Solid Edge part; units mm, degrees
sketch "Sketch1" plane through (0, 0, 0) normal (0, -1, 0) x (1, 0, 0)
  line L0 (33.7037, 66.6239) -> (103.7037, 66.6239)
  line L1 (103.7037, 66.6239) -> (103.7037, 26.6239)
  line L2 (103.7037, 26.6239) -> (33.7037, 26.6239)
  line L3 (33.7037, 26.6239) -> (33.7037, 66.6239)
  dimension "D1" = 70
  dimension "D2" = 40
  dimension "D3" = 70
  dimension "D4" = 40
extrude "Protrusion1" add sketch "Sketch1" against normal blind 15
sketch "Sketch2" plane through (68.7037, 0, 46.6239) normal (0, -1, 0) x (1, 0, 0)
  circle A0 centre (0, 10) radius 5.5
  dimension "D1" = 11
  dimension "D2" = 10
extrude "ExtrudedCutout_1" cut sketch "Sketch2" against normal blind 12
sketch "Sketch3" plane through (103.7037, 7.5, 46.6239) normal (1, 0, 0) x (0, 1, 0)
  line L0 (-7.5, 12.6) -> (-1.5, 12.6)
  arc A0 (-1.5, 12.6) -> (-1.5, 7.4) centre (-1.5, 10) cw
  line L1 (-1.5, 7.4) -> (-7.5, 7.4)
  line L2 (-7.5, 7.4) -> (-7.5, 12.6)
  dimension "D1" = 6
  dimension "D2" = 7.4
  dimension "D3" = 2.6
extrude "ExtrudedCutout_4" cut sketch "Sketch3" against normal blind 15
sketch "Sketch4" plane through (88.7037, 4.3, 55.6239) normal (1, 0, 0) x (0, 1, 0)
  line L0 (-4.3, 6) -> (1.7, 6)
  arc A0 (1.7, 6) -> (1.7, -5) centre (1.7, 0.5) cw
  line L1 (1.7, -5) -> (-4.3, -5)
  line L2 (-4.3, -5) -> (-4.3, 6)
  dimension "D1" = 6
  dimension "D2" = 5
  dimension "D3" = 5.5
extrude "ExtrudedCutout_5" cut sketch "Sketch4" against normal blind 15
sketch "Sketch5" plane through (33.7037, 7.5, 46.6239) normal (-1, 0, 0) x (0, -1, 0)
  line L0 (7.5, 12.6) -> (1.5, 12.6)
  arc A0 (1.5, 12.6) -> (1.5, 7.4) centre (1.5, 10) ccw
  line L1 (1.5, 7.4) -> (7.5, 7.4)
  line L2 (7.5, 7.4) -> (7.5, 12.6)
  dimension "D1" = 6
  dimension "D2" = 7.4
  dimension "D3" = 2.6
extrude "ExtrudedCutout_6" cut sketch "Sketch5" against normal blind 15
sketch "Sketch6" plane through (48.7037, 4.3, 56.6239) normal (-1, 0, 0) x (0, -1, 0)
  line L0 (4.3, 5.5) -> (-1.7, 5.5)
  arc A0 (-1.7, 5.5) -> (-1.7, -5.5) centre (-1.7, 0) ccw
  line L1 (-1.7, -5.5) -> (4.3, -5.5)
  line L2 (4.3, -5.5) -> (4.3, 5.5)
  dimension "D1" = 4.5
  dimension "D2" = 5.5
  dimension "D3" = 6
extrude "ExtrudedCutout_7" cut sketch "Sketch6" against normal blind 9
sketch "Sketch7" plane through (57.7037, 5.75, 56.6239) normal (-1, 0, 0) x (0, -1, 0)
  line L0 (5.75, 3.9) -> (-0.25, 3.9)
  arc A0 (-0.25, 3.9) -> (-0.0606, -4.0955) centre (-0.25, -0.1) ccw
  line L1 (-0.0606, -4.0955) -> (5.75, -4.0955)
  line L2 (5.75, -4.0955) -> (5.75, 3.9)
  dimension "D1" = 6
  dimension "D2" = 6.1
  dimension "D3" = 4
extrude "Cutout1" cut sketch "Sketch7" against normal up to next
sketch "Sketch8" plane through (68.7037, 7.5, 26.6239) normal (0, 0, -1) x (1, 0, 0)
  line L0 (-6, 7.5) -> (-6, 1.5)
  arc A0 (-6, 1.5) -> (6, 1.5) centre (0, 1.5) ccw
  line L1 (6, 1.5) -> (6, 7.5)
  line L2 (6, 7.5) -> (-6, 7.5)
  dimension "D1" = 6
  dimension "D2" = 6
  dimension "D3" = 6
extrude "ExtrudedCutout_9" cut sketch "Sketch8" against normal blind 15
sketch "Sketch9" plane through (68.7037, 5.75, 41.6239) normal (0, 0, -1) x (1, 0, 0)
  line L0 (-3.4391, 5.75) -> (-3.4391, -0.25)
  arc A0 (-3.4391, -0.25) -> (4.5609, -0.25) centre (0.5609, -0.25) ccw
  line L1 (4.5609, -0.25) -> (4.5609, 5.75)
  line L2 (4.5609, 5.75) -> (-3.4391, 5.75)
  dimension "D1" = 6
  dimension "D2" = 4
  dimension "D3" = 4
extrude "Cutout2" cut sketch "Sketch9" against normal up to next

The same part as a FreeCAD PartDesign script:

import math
import FreeCAD as App
import Part
import Sketcher

V = App.Vector


def add_polygon(sketch, points):
    """Adds a closed chain of lines whose ends are joined by coincident constraints."""
    first, n = sketch.GeometryCount, len(points)
    for a, b in zip(points, points[1:] + points[:1]):
        sketch.addGeometry(Part.LineSegment(App.Vector(*a, 0), App.Vector(*b, 0)), False)
    for i in range(n):
        sketch.addConstraint(Sketcher.Constraint("Coincident", first + i, 2, first + (i + 1) % n, 1))

doc = App.newDocument("Part")
body = doc.addObject("PartDesign::Body", "Body")

sketch1 = body.newObject("Sketcher::SketchObject", "Sketch")
sketch1.AttachmentSupport = (doc.getObject("XZ_Plane"), [""])
sketch1.MapMode = "FlatFace"
add_polygon(sketch1, [(104, 67), (34, 67), (34, 27), (104, 27)])
sketch1.addConstraint([
    Sketcher.Constraint("Horizontal", 0),
    Sketcher.Constraint("Vertical", 1),
    Sketcher.Constraint("Horizontal", 2),
    Sketcher.Constraint("Vertical", 3),
    Sketcher.Constraint("DistanceX", 0, 2, 0, 1, 70.0),
    Sketcher.Constraint("DistanceY", 1, 2, 1, 1, 40.0),
    Sketcher.Constraint("DistanceX", -1, 1, 0, 2, 33.7037),
    Sketcher.Constraint("DistanceY", -1, 1, 0, 2, 66.624),
])
pad1 = body.newObject("PartDesign::Pad", "Pad")
pad1.Profile = sketch1
pad1.Length = 15
pad1.Reversed = True

sketch2 = body.newObject("Sketcher::SketchObject", "Sketch001")
sketch2.AttachmentSupport = (doc.getObject("XZ_Plane"), [""])
sketch2.MapMode = "FlatFace"
sketch2.addGeometry(Part.Circle(V(69, 57, 0), V(0, 0, 1), 6), False)
sketch2.addConstraint([
    Sketcher.Constraint("Diameter", 0, 11.0),
    Sketcher.Constraint("DistanceY", -1, 1, 0, 3, 56.624),
    Sketcher.Constraint("DistanceX", -1, 1, 0, 3, 68.7037),
])
pocket1 = body.newObject("PartDesign::Pocket", "Pocket")
pocket1.Profile = sketch2
pocket1.Length = 12

sketch3 = body.newObject("Sketcher::SketchObject", "Sketch002")
sketch3.AttachmentSupport = (doc.getObject("YZ_Plane"), [""])
sketch3.MapMode = "FlatFace"
sketch3.AttachmentOffset = App.Placement(V(0, 0, 103.7037), App.Rotation())
sketch3.addGeometry([
    Part.LineSegment(V(6, 59.2, 0), V(0, 59.2, 0)),
    Part.LineSegment(V(0, 59.2, 0), V(0, 54, 0)),
    Part.LineSegment(V(0, 54, 0), V(6, 54, 0)),
    Part.ArcOfCircle(Part.Circle(V(6, 56.6, 0), V(0, 0, 1), 2.6), math.radians(-90), math.radians(90)),
], False)
sketch3.addConstraint([
    Sketcher.Constraint("Coincident", 0, 2, 1, 1),
    Sketcher.Constraint("Coincident", 1, 2, 2, 1),
    Sketcher.Constraint("Tangent", 2, 2, 3, 1),
    Sketcher.Constraint("Tangent", 3, 2, 0, 1),
    Sketcher.Constraint("Horizontal", 0),
    Sketcher.Constraint("Vertical", 1),
    Sketcher.Constraint("Horizontal", 2),
    Sketcher.Constraint("PointOnObject", 0, 2, -2),
    Sketcher.Constraint("Radius", 3, 2.6),
    Sketcher.Constraint("DistanceX", 0, 2, 0, 1, 6.0),
    Sketcher.Constraint("DistanceY", -1, 1, 3, 3, 56.624),
])
pocket2 = body.newObject("PartDesign::Pocket", "Pocket001")
pocket2.Profile = sketch3
pocket2.Length = 15

sketch4 = body.newObject("Sketcher::SketchObject", "Sketch003")
sketch4.AttachmentSupport = (doc.getObject("YZ_Plane"), [""])
sketch4.MapMode = "FlatFace"
sketch4.AttachmentOffset = App.Placement(V(0, 0, 88.7037), App.Rotation())
sketch4.addGeometry([
    Part.LineSegment(V(6, 62, 0), V(0, 62, 0)),
    Part.LineSegment(V(0, 62, 0), V(0, 51, 0)),
    Part.LineSegment(V(0, 51, 0), V(6, 51, 0)),
    Part.ArcOfCircle(Part.Circle(V(6, 56, 0), V(0, 0, 1), 6), math.radians(-90), math.radians(90)),
], False)
sketch4.addConstraint([
    Sketcher.Constraint("Coincident", 0, 2, 1, 1),
    Sketcher.Constraint("Coincident", 1, 2, 2, 1),
    Sketcher.Constraint("Tangent", 2, 2, 3, 1),
    Sketcher.Constraint("Tangent", 3, 2, 0, 1),
    Sketcher.Constraint("Horizontal", 0),
    Sketcher.Constraint("Vertical", 1),
    Sketcher.Constraint("Horizontal", 2),
    Sketcher.Constraint("PointOnObject", 0, 2, -2),
    Sketcher.Constraint("Radius", 3, 5.5),
    Sketcher.Constraint("DistanceX", 0, 2, 0, 1, 6.0),
    Sketcher.Constraint("DistanceY", -1, 1, 3, 3, 56.124),
])
pocket3 = body.newObject("PartDesign::Pocket", "Pocket002")
pocket3.Profile = sketch4
pocket3.Length = 15

sketch5 = body.newObject("Sketcher::SketchObject", "Sketch004")
sketch5.AttachmentSupport = (doc.getObject("YZ_Plane"), [""])
sketch5.MapMode = "FlatFace"
sketch5.AttachmentOffset = App.Placement(V(0, 0, 33.7037), App.Rotation())
sketch5.addGeometry([
    Part.LineSegment(V(0, 54, 0), V(0, 59.2, 0)),
    Part.LineSegment(V(0, 59.2, 0), V(6, 59.2, 0)),
    Part.ArcOfCircle(Part.Circle(V(6, 56.6, 0), V(0, 0, 1), 2.6), math.radians(-90), math.radians(90)),
    Part.LineSegment(V(6, 54, 0), V(0, 54, 0)),
], False)
sketch5.addConstraint([
    Sketcher.Constraint("Coincident", 0, 2, 1, 1),
    Sketcher.Constraint("Tangent", 1, 2, 2, 2),
    Sketcher.Constraint("Tangent", 2, 1, 3, 1),
    Sketcher.Constraint("Coincident", 3, 2, 0, 1),
    Sketcher.Constraint("Vertical", 0),
    Sketcher.Constraint("Horizontal", 1),
    Sketcher.Constraint("Horizontal", 3),
    Sketcher.Constraint("PointOnObject", 0, 2, -2),
    Sketcher.Constraint("Radius", 2, 2.6),
    Sketcher.Constraint("DistanceX", 1, 1, 1, 2, 6.0),
    Sketcher.Constraint("DistanceY", -1, 1, 2, 3, 56.624),
])
pocket4 = body.newObject("PartDesign::Pocket", "Pocket003")
pocket4.Profile = sketch5
pocket4.Length = 15
pocket4.Reversed = True

sketch6 = body.newObject("Sketcher::SketchObject", "Sketch005")
sketch6.AttachmentSupport = (doc.getObject("YZ_Plane"), [""])
sketch6.MapMode = "FlatFace"
sketch6.AttachmentOffset = App.Placement(V(0, 0, 48.7037), App.Rotation())
sketch6.addGeometry([
    Part.LineSegment(V(0, 51, 0), V(0, 62, 0)),
    Part.LineSegment(V(0, 62, 0), V(6, 62, 0)),
    Part.ArcOfCircle(Part.Circle(V(6, 57, 0), V(0, 0, 1), 6), math.radians(-90), math.radians(90)),
    Part.LineSegment(V(6, 51, 0), V(0, 51, 0)),
], False)
sketch6.addConstraint([
    Sketcher.Constraint("Coincident", 0, 2, 1, 1),
    Sketcher.Constraint("Tangent", 1, 2, 2, 2),
    Sketcher.Constraint("Tangent", 2, 1, 3, 1),
    Sketcher.Constraint("Coincident", 3, 2, 0, 1),
    Sketcher.Constraint("Vertical", 0),
    Sketcher.Constraint("Horizontal", 1),
    Sketcher.Constraint("Horizontal", 3),
    Sketcher.Constraint("PointOnObject", 0, 2, -2),
    Sketcher.Constraint("Radius", 2, 5.5),
    Sketcher.Constraint("DistanceX", 1, 1, 1, 2, 6.0),
    Sketcher.Constraint("DistanceY", -1, 1, 2, 3, 56.624),
])
pocket5 = body.newObject("PartDesign::Pocket", "Pocket004")
pocket5.Profile = sketch6
pocket5.Length = 9
pocket5.Reversed = True

sketch7 = body.newObject("Sketcher::SketchObject", "Sketch006")
sketch7.AttachmentSupport = (doc.getObject("YZ_Plane"), [""])
sketch7.MapMode = "FlatFace"
sketch7.AttachmentOffset = App.Placement(V(0, 0, 57.7037), App.Rotation())
sketch7.addGeometry([
    Part.LineSegment(V(0, 52.5, 0), V(0, 60.5, 0)),
    Part.LineSegment(V(0, 60.5, 0), V(6, 60.5, 0)),
    Part.ArcOfCircle(Part.Circle(V(6, 56.5, 0), V(0, 0, 1), 4), math.radians(-93), math.radians(90)),
    Part.LineSegment(V(5.8, 52.5, 0), V(0, 52.5, 0)),
], False)
sketch7.addConstraint([
    Sketcher.Constraint("Coincident", 0, 2, 1, 1),
    Sketcher.Constraint("Tangent", 1, 2, 2, 2),
    Sketcher.Constraint("Coincident", 2, 1, 3, 1),
    Sketcher.Constraint("Coincident", 3, 2, 0, 1),
    Sketcher.Constraint("Vertical", 0),
    Sketcher.Constraint("Horizontal", 1),
    Sketcher.Constraint("Horizontal", 3),
    Sketcher.Constraint("PointOnObject", 0, 2, -2),
    Sketcher.Constraint("Radius", 2, 4.0),
    Sketcher.Constraint("DistanceX", 1, 1, 1, 2, 6.0),
    Sketcher.Constraint("DistanceX", 3, 2, 3, 1, 5.8106),
    Sketcher.Constraint("DistanceY", -1, 1, 2, 3, 56.524),
])
pocket6 = body.newObject("PartDesign::Pocket", "Pocket005")
pocket6.Profile = sketch7
pocket6.Type = "UpToFirst"
pocket6.Reversed = True

sketch8 = body.newObject("Sketcher::SketchObject", "Sketch007")
sketch8.AttachmentSupport = (doc.getObject("XY_Plane"), [""])
sketch8.MapMode = "FlatFace"
sketch8.AttachmentOffset = App.Placement(V(0, 0, 26.6239), App.Rotation())
sketch8.addGeometry([
    Part.LineSegment(V(75, 0, 0), V(63, 0, 0)),
    Part.LineSegment(V(63, 0, 0), V(63, 6, 0)),
    Part.ArcOfCircle(Part.Circle(V(69, 6, 0), V(0, 0, 1), 6), math.radians(0), math.radians(180)),
    Part.LineSegment(V(75, 6, 0), V(75, 0, 0)),
], False)
sketch8.addConstraint([
    Sketcher.Constraint("Coincident", 0, 2, 1, 1),
    Sketcher.Constraint("Tangent", 1, 2, 2, 2),
    Sketcher.Constraint("Tangent", 2, 1, 3, 1),
    Sketcher.Constraint("Coincident", 3, 2, 0, 1),
    Sketcher.Constraint("Horizontal", 0),
    Sketcher.Constraint("Vertical", 1),
    Sketcher.Constraint("Vertical", 3),
    Sketcher.Constraint("PointOnObject", 0, 2, -1),
    Sketcher.Constraint("Radius", 2, 6.0),
    Sketcher.Constraint("DistanceY", 1, 1, 1, 2, 6.0),
    Sketcher.Constraint("DistanceX", -1, 1, 2, 3, 68.7037),
])
pocket7 = body.newObject("PartDesign::Pocket", "Pocket006")
pocket7.Profile = sketch8
pocket7.Length = 15
pocket7.Reversed = True

sketch9 = body.newObject("Sketcher::SketchObject", "Sketch008")
sketch9.AttachmentSupport = (doc.getObject("XY_Plane"), [""])
sketch9.MapMode = "FlatFace"
sketch9.AttachmentOffset = App.Placement(V(0, 0, 41.6239), App.Rotation())
sketch9.addGeometry([
    Part.LineSegment(V(73.3, 0, 0), V(65.3, 0, 0)),
    Part.LineSegment(V(65.3, 0, 0), V(65.3, 6, 0)),
    Part.ArcOfCircle(Part.Circle(V(69.3, 6, 0), V(0, 0, 1), 4), math.radians(0), math.radians(180)),
    Part.LineSegment(V(73.3, 6, 0), V(73.3, 0, 0)),
], False)
sketch9.addConstraint([
    Sketcher.Constraint("Coincident", 0, 2, 1, 1),
    Sketcher.Constraint("Tangent", 1, 2, 2, 2),
    Sketcher.Constraint("Tangent", 2, 1, 3, 1),
    Sketcher.Constraint("Coincident", 3, 2, 0, 1),
    Sketcher.Constraint("Horizontal", 0),
    Sketcher.Constraint("Vertical", 1),
    Sketcher.Constraint("Vertical", 3),
    Sketcher.Constraint("PointOnObject", 0, 2, -1),
    Sketcher.Constraint("Radius", 2, 4.0),
    Sketcher.Constraint("DistanceY", 1, 1, 1, 2, 6.0),
    Sketcher.Constraint("DistanceX", -1, 1, 2, 3, 69.2646),
])
pocket8 = body.newObject("PartDesign::Pocket", "Pocket007")
pocket8.Profile = sketch9
pocket8.Type = "UpToFirst"
pocket8.Reversed = True

doc.recompute()
